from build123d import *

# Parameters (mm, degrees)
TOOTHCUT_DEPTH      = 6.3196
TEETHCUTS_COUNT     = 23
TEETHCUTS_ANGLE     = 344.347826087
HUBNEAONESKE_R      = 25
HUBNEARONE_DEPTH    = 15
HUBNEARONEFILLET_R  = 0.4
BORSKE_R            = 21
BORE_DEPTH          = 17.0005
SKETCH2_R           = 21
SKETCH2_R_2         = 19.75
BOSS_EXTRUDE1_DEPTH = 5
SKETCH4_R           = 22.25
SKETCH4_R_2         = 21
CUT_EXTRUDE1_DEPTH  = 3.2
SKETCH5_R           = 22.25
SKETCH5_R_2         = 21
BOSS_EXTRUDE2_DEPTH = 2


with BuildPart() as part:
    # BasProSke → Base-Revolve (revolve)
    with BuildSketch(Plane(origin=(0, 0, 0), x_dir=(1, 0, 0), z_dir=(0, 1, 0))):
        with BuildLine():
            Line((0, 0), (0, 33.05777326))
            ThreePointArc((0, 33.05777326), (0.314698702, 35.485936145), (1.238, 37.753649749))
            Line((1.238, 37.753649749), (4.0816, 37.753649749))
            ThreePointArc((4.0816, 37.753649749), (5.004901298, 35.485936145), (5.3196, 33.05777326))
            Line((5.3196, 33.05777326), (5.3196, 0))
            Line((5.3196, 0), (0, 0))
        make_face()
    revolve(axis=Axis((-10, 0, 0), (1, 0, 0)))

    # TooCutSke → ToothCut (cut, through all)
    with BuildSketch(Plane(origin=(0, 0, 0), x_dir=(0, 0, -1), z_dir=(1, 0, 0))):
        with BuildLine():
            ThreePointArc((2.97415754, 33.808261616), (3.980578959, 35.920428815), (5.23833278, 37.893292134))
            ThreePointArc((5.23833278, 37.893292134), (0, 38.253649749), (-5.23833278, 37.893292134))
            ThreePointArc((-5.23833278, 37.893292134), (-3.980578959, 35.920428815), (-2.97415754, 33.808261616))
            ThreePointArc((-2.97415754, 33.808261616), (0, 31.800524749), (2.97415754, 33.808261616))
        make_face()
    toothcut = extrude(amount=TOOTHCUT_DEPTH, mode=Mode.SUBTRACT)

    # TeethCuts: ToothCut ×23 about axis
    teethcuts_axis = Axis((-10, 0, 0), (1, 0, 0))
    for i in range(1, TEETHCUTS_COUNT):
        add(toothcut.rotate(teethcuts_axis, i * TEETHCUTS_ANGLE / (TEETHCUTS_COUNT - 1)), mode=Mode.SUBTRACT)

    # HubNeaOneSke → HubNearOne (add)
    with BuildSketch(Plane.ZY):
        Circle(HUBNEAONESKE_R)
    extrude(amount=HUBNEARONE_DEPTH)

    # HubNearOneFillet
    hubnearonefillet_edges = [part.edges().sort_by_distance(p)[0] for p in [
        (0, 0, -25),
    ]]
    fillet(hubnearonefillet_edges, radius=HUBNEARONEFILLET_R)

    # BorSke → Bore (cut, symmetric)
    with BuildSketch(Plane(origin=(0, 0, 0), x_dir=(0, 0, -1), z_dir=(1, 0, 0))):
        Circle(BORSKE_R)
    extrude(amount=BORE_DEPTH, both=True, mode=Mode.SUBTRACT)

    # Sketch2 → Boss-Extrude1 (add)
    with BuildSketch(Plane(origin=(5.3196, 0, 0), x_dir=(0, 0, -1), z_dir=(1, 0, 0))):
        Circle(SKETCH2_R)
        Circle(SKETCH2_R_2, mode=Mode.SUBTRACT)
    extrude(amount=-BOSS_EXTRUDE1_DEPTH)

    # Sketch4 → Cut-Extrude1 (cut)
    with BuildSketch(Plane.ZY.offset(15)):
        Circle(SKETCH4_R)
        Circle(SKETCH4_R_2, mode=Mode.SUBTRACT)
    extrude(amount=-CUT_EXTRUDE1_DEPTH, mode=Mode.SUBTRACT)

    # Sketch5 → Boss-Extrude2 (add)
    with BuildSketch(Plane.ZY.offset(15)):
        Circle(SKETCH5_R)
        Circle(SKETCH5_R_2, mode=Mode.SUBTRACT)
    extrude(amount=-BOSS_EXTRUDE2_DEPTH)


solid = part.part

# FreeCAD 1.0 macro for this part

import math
import FreeCAD as App
import Part
import Sketcher
from FreeCAD import Vector


def edges_at(feature, points):
    """Names of the edges that pass closest to the given points."""
    edges = feature.Shape.Edges
    near = lambda p: min(range(len(edges)), key=lambda i: edges[i].distToShape(Part.Vertex(*p))[0])
    return sorted({f"Edge{near(p) + 1}" for p in points})

doc = App.newDocument("Part")
params = doc.addObject("Spreadsheet::Sheet", "Params")
for row, (alias, value) in enumerate([
    ("revolution_angle", "360 deg"),
    ("sketch2_radius", "19.05 mm"),
    ("sketch3_diameter", "50 mm"),
    ("pad1_length", "15 mm"),
    ("fillet_radius", "0.4 mm"),
    ("sketch4_diameter", "42 mm"),
    ("pocket2_length", "34.001 mm"),
    ("sketch5_diameter", "42 mm"),
    ("sketch5_diameter2", "39.5 mm"),
    ("pad2_length", "5 mm"),
    ("sketch6_diameter", "42 mm"),
    ("sketch6_diameter2", "44.5 mm"),
    ("pocket3_length", "3.2 mm"),
    ("sketch7_diameter", "42 mm"),
    ("sketch7_diameter2", "44.5 mm"),
    ("pad3_length", "2 mm"),
], start=1):
    params.set(f"A{row}", alias)
    params.set(f"B{row}", "=" + value)
    params.setAlias(f"B{row}", alias)

body = doc.addObject("PartDesign::Body", "Body")

# Sketch on XZ plane
sketch1 = body.newObject("Sketcher::SketchObject", "Sketch")
sketch1.AttachmentSupport = (doc.getObject("XZ_Plane"), [""])
sketch1.MapMode = "FlatFace"
sketch1.addGeometry([
    Part.LineSegment(Vector(0, -33.1, 0), Vector(0, 0, 0)),  # 0
    Part.LineSegment(Vector(0, 0, 0), Vector(5.3, 0, 0)),  # 1
    Part.LineSegment(Vector(5.3, 0, 0), Vector(5.3, -33.1, 0)),  # 2
    Part.ArcOfCircle(Part.Circle(Vector(-4.2, -33.1, 0), Vector(0, 0, 1), 9.5), math.radians(-30), math.radians(0)),  # 3
    Part.LineSegment(Vector(4.1, -37.8, 0), Vector(1.2, -37.8, 0)),  # 4
    Part.ArcOfCircle(Part.Circle(Vector(9.5, -33.1, 0), Vector(0, 0, 1), 9.5), math.radians(-180), math.radians(-150)),  # 5
], False)
sketch1.addConstraint([
    Sketcher.Constraint("Coincident", 0, 2, 1, 1),
    Sketcher.Constraint("Coincident", 1, 2, 2, 1),
    Sketcher.Constraint("Tangent", 2, 2, 3, 2),
    Sketcher.Constraint("Coincident", 3, 1, 4, 1),
    Sketcher.Constraint("Coincident", 4, 2, 5, 2),
    Sketcher.Constraint("Tangent", 5, 1, 0, 1),
    Sketcher.Constraint("Vertical", 0),
    Sketcher.Constraint("Horizontal", 1),
    Sketcher.Constraint("Vertical", 2),
    Sketcher.Constraint("Horizontal", 4),
    Sketcher.Constraint("Coincident", 0, 2, -1, 1),
    Sketcher.Constraint("Equal", 3, 5),
    Sketcher.Constraint("Horizontal", 3, 3, 5, 3),
    Sketcher.Constraint("Radius", 3, 9.525),
    Sketcher.Constraint("DistanceX", 1, 1, 1, 2, 5.3196),
    Sketcher.Constraint("DistanceX", 4, 2, 4, 1, 2.8436),
    Sketcher.Constraint("DistanceY", 0, 1, 0, 2, 33.057773),
])
revolution = body.newObject("PartDesign::Revolution", "Revolution")
revolution.Profile = sketch1
revolution.ReferenceAxis = (sketch1, ["H_Axis"])
revolution.setExpression("Angle", "Params.revolution_angle")

# Sketch on YZ plane
sketch2 = body.newObject("Sketcher::SketchObject", "Sketch001")
sketch2.AttachmentSupport = (doc.getObject("YZ_Plane"), [""])
sketch2.MapMode = "FlatFace"
sketch2.addGeometry([
    Part.ArcOfCircle(Part.Circle(Vector(26.7, -20.6, 0), Vector(0, 0, 1), 19.1), math.radians(53.96), math.radians(68.04)),
    Part.ArcOfCircle(Part.Circle(Vector(0, 0, 0), Vector(0, 0, 1), 38.3), math.radians(-7.87), math.radians(7.87)),
    Part.ArcOfCircle(Part.Circle(Vector(26.7, 20.6, 0), Vector(0, 0, 1), 19.1), math.radians(-68.04), math.radians(-53.96)),
    Part.ArcOfCircle(Part.Circle(Vector(35, 0, 0), Vector(0, 0, 1), 3.2), math.radians(112), math.radians(248)),
], False)
sketch2.addConstraint([
    Sketcher.Constraint("Coincident", 0, 1, 1, 1),
    Sketcher.Constraint("Coincident", 1, 2, 2, 2),
    Sketcher.Constraint("Tangent", 2, 1, 3, 1),
    Sketcher.Constraint("Tangent", 3, 2, 0, 2),
    Sketcher.Constraint("Coincident", 1, 3, -1, 1),
    Sketcher.Constraint("Equal", 0, 2),
    Sketcher.Constraint("Symmetric", 0, 3, 2, 3, -1),
    Sketcher.Constraint("Radius", 0, 19.05),
    Sketcher.Constraint("Radius", 1, 38.25365),
    Sketcher.Constraint("Radius", 3, 3.20675),
    Sketcher.Constraint("DistanceX", -1, 1, 0, 3, 26.685411),
    Sketcher.Constraint("DistanceY", 0, 3, -1, 1, 20.64242),
])
sketch2.setExpression("Constraints[7]", "Params.sketch2_radius")
pocket1 = body.newObject("PartDesign::Pocket", "Pocket")
pocket1.Profile = sketch2
pocket1.Type = "ThroughAll"
pocket1.Reversed = True
doc.recompute()

polarpattern = body.newObject("PartDesign::PolarPattern", "PolarPattern")
polarpattern.Originals = [pocket1]
polarpattern.Axis = (doc.getObject("X_Axis"), [""])
polarpattern.Angle = 360
polarpattern.Occurrences = 23
body.Tip = polarpattern

# Sketch on YZ plane
sketch3 = body.newObject("Sketcher::SketchObject", "Sketch002")
sketch3.AttachmentSupport = (doc.getObject("YZ_Plane"), [""])
sketch3.MapMode = "FlatFace"
sketch3.addGeometry(Part.Circle(Vector(0, 0, 0), Vector(0, 0, 1), 25), False)
sketch3.addConstraint([
    Sketcher.Constraint("Coincident", 0, 3, -1, 1),
    Sketcher.Constraint("Diameter", 0, 50.0),
])
sketch3.setExpression("Constraints[1]", "Params.sketch3_diameter")
pad1 = body.newObject("PartDesign::Pad", "Pad")
pad1.Profile = sketch3
pad1.setExpression("Length", "Params.pad1_length")
pad1.Reversed = True
doc.recompute()

fillet = body.newObject("PartDesign::Fillet", "Fillet")
fillet.Base = (pad1, edges_at(pad1, [(0, 0, -25)]))
fillet.setExpression("Radius", "Params.fillet_radius")

# Sketch on YZ plane
sketch4 = body.newObject("Sketcher::SketchObject", "Sketch003")
sketch4.AttachmentSupport = (doc.getObject("YZ_Plane"), [""])
sketch4.MapMode = "FlatFace"
sketch4.addGeometry(Part.Circle(Vector(0, 0, 0), Vector(0, 0, 1), 21), False)
sketch4.addConstraint([
    Sketcher.Constraint("Coincident", 0, 3, -1, 1),
    Sketcher.Constraint("Diameter", 0, 42.0),
])
sketch4.setExpression("Constraints[1]", "Params.sketch4_diameter")
pocket2 = body.newObject("PartDesign::Pocket", "Pocket001")
pocket2.Profile = sketch4
pocket2.setExpression("Length", "Params.pocket2_length")
pocket2.Midplane = True

# Sketch on YZ plane
sketch5 = body.newObject("Sketcher::SketchObject", "Sketch004")
sketch5.AttachmentSupport = (doc.getObject("YZ_Plane"), [""])
sketch5.MapMode = "FlatFace"
sketch5.AttachmentOffset = App.Placement(Vector(0, 0, 5.3196), App.Rotation())
sketch5.addGeometry([
    Part.Circle(Vector(0, 0, 0), Vector(0, 0, 1), 21),
    Part.Circle(Vector(0, 0, 0), Vector(0, 0, 1), 20),
], False)
sketch5.addConstraint([
    Sketcher.Constraint("Coincident", 0, 3, -1, 1),
    Sketcher.Constraint("Coincident", 1, 3, -1, 1),
    Sketcher.Constraint("Diameter", 0, 42.0),
    Sketcher.Constraint("Diameter", 1, 39.5),
])
sketch5.setExpression("Constraints[2]", "Params.sketch5_diameter")
sketch5.setExpression("Constraints[3]", "Params.sketch5_diameter2")
pad2 = body.newObject("PartDesign::Pad", "Pad001")
pad2.Profile = sketch5
pad2.setExpression("Length", "Params.pad2_length")
pad2.Reversed = True

# Sketch on YZ plane
sketch6 = body.newObject("Sketcher::SketchObject", "Sketch005")
sketch6.AttachmentSupport = (doc.getObject("YZ_Plane"), [""])
sketch6.MapMode = "FlatFace"
sketch6.AttachmentOffset = App.Placement(Vector(0, 0, -15), App.Rotation())
sketch6.addGeometry([
    Part.Circle(Vector(0, 0, 0), Vector(0, 0, 1), 22),
    Part.Circle(Vector(0, 0, 0), Vector(0, 0, 1), 21),
], False)
sketch6.addConstraint([
    Sketcher.Constraint("Coincident", 0, 3, -1, 1),
    Sketcher.Constraint("Coincident", 1, 3, -1, 1),
    Sketcher.Constraint("Diameter", 1, 42.0),
    Sketcher.Constraint("Diameter", 0, 44.5),
])
sketch6.setExpression("Constraints[2]", "Params.sketch6_diameter")
sketch6.setExpression("Constraints[3]", "Params.sketch6_diameter2")
pocket3 = body.newObject("PartDesign::Pocket", "Pocket002")
pocket3.Profile = sketch6
pocket3.setExpression("Length", "Params.pocket3_length")
pocket3.Reversed = True

# Sketch on YZ plane
sketch7 = body.newObject("Sketcher::SketchObject", "Sketch006")
sketch7.AttachmentSupport = (doc.getObject("YZ_Plane"), [""])
sketch7.MapMode = "FlatFace"
sketch7.AttachmentOffset = App.Placement(Vector(0, 0, -15), App.Rotation())
sketch7.addGeometry([
    Part.Circle(Vector(0, 0, 0), Vector(0, 0, 1), 22),
    Part.Circle(Vector(0, 0, 0), Vector(0, 0, 1), 21),
], False)
sketch7.addConstraint([
    Sketcher.Constraint("Coincident", 0, 3, -1, 1),
    Sketcher.Constraint("Coincident", 1, 3, -1, 1),
    Sketcher.Constraint("Diameter", 1, 42.0),
    Sketcher.Constraint("Diameter", 0, 44.5),
])
sketch7.setExpression("Constraints[2]", "Params.sketch7_diameter")
sketch7.setExpression("Constraints[3]", "Params.sketch7_diameter2")
pad3 = body.newObject("PartDesign::Pad", "Pad002")
pad3.Profile = sketch7
pad3.setExpression("Length", "Params.pad3_length")

doc.recompute()
